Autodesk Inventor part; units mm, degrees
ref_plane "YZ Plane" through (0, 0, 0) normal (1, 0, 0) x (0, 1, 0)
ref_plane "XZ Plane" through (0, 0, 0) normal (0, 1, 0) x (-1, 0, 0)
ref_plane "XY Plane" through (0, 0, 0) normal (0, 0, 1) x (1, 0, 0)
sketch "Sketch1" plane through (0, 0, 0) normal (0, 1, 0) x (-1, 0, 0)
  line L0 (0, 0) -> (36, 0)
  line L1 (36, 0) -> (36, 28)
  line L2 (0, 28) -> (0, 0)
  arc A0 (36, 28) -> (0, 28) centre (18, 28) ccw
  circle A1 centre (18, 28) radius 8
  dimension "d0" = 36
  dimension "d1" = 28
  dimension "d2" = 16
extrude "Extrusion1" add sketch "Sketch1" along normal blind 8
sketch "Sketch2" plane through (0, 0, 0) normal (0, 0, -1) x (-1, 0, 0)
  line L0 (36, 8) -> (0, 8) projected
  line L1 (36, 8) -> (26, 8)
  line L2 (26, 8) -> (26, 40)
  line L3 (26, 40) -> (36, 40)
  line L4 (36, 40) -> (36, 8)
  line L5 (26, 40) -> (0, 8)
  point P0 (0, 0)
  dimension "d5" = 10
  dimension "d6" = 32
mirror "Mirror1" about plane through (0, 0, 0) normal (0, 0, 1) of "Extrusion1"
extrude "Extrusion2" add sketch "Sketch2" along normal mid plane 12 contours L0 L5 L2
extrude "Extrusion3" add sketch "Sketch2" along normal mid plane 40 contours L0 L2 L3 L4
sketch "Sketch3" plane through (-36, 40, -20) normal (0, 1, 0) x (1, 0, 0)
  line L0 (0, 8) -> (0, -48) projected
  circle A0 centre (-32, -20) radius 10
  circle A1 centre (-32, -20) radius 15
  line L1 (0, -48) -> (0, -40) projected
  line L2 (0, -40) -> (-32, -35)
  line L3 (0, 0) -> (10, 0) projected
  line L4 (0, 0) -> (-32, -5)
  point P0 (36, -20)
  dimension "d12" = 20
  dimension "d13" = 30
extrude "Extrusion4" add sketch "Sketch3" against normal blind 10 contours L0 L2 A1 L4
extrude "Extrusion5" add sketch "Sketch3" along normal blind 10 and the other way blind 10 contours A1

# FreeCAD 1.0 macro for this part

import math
import FreeCAD as App
import Part
import Sketcher
from FreeCAD import Vector
Q = App.Units.Quantity

doc = App.newDocument("Part")
body = doc.addObject("PartDesign::Body", "Body")

# Sketch on XZ plane
sketch1 = body.newObject("Sketcher::SketchObject", "Sketch")
sketch1.AttachmentSupport = (doc.getObject("XZ_Plane"), [""])
sketch1.MapMode = "FlatFace"
sketch1.addGeometry(Part.LineSegment(Vector(0, 28, 0), Vector(0, 0, 0)), False)
sketch1.addGeometry(Part.LineSegment(Vector(0, 0, 0), Vector(-36, 0, 0)), False)
sketch1.addGeometry(Part.LineSegment(Vector(-36, 0, 0), Vector(-36, 28, 0)), False)
sketch1.addGeometry(Part.ArcOfCircle(Part.Circle(Vector(-18, 28, 0), Vector(0, 0, 1), 18), math.radians(0), math.radians(180)), False)
sketch1.addGeometry(Part.Circle(Vector(-18, 28, 0), Vector(0, 0, 1), 8), False)
sketch1.addConstraint(Sketcher.Constraint("Coincident", 0, 2, 1, 1))
sketch1.addConstraint(Sketcher.Constraint("Coincident", 1, 2, 2, 1))
sketch1.addConstraint(Sketcher.Constraint("Tangent", 2, 2, 3, 2))
sketch1.addConstraint(Sketcher.Constraint("Tangent", 3, 1, 0, 1))
sketch1.addConstraint(Sketcher.Constraint("Vertical", 0))
sketch1.addConstraint(Sketcher.Constraint("Horizontal", 1))
sketch1.addConstraint(Sketcher.Constraint("Vertical", 2))
sketch1.addConstraint(Sketcher.Constraint("Coincident", 0, 2, -1, 1))
sketch1.addConstraint(Sketcher.Constraint("Coincident", 4, 3, 3, 3))
sketch1.addConstraint(Sketcher.Constraint("Diameter", 4, Q("16 mm")))
sketch1.addConstraint(Sketcher.Constraint("Radius", 3, Q("18 mm")))
sketch1.addConstraint(Sketcher.Constraint("DistanceY", 0, 2, 0, 1, Q("28 mm")))
pad1 = body.newObject("PartDesign::Pad", "Pad")
pad1.Profile = sketch1
pad1.Length = 8
pad1.Reversed = True
doc.recompute()

mirrored = body.newObject("PartDesign::Mirrored", "Mirrored")
mirrored.Originals = [pad1]
mirrored.MirrorPlane = (doc.getObject("XY_Plane"), [""])
body.Tip = mirrored

# Sketch on XY plane
sketch2 = body.newObject("Sketcher::SketchObject", "Sketch001")
sketch2.AttachmentSupport = (doc.getObject("XY_Plane"), [""])
sketch2.MapMode = "FlatFace"
sketch2.addGeometry(Part.LineSegment(Vector(0, 8, 0), Vector(-26, 8, 0)), False)
sketch2.addGeometry(Part.LineSegment(Vector(-26, 8, 0), Vector(-26, 40, 0)), False)
sketch2.addGeometry(Part.LineSegment(Vector(-26, 40, 0), Vector(0, 8, 0)), False)
sketch2.addConstraint(Sketcher.Constraint("Coincident", 0, 2, 1, 1))
sketch2.addConstraint(Sketcher.Constraint("Coincident", 1, 2, 2, 1))
sketch2.addConstraint(Sketcher.Constraint("Coincident", 2, 2, 0, 1))
sketch2.addConstraint(Sketcher.Constraint("Horizontal", 0))
sketch2.addConstraint(Sketcher.Constraint("Vertical", 1))
sketch2.addConstraint(Sketcher.Constraint("PointOnObject", 2, 2, -2))
sketch2.addConstraint(Sketcher.Constraint("DistanceY", 1, 1, 1, 2, Q("32 mm")))
sketch2.addConstraint(Sketcher.Constraint("DistanceX", 0, 2, 0, 1, Q("26 mm")))
sketch2.addConstraint(Sketcher.Constraint("DistanceY", -1, 1, 0, 2, Q("8 mm")))
pad2 = body.newObject("PartDesign::Pad", "Pad001")
pad2.Profile = sketch2
pad2.Length = 12
pad2.Midplane = True

# Sketch on XY plane
sketch3 = body.newObject("Sketcher::SketchObject", "Sketch002")
sketch3.AttachmentSupport = (doc.getObject("XY_Plane"), [""])
sketch3.MapMode = "FlatFace"
sketch3.addGeometry(Part.LineSegment(Vector(-26, 8, 0), Vector(-36, 8, 0)), False)
sketch3.addGeometry(Part.LineSegment(Vector(-36, 8, 0), Vector(-36, 40, 0)), False)
sketch3.addGeometry(Part.LineSegment(Vector(-36, 40, 0), Vector(-26, 40, 0)), False)
sketch3.addGeometry(Part.LineSegment(Vector(-26, 40, 0), Vector(-26, 8, 0)), False)
sketch3.addConstraint(Sketcher.Constraint("Coincident", 0, 2, 1, 1))
sketch3.addConstraint(Sketcher.Constraint("Coincident", 1, 2, 2, 1))
sketch3.addConstraint(Sketcher.Constraint("Coincident", 2, 2, 3, 1))
sketch3.addConstraint(Sketcher.Constraint("Coincident", 3, 2, 0, 1))
sketch3.addConstraint(Sketcher.Constraint("Horizontal", 0))
sketch3.addConstraint(Sketcher.Constraint("Vertical", 1))
sketch3.addConstraint(Sketcher.Constraint("Horizontal", 2))
sketch3.addConstraint(Sketcher.Constraint("Vertical", 3))
sketch3.addConstraint(Sketcher.Constraint("DistanceX", 0, 2, 0, 1, Q("10 mm")))
sketch3.addConstraint(Sketcher.Constraint("DistanceY", 1, 1, 1, 2, Q("32 mm")))
sketch3.addConstraint(Sketcher.Constraint("DistanceX", 0, 2, -1, 1, Q("36 mm")))
sketch3.addConstraint(Sketcher.Constraint("DistanceY", -1, 1, 0, 2, Q("8 mm")))
pad3 = body.newObject("PartDesign::Pad", "Pad002")
pad3.Profile = sketch3
pad3.Length = 40
pad3.Midplane = True

# Sketch on XZ plane
sketch4 = body.newObject("Sketcher::SketchObject", "Sketch003")
sketch4.AttachmentSupport = (doc.getObject("XZ_Plane"), [""])
sketch4.MapMode = "FlatFace"
sketch4.AttachmentOffset = App.Placement(Vector(0, 0, -40), App.Rotation())
sketch4.addGeometry(Part.LineSegment(Vector(-36, 20, 0), Vector(-36, -20, 0)), False)
sketch4.addGeometry(Part.LineSegment(Vector(-36, -20, 0), Vector(-68, -15, 0)), False)
sketch4.addGeometry(Part.ArcOfCircle(Part.Circle(Vector(-68, 0, 0), Vector(0, 0, 1), 15), math.radians(-90), math.radians(90)), False)
sketch4.addGeometry(Part.LineSegment(Vector(-68, 15, 0), Vector(-36, 20, 0)), False)
sketch4.addConstraint(Sketcher.Constraint("Coincident", 0, 2, 1, 1))
sketch4.addConstraint(Sketcher.Constraint("Coincident", 1, 2, 2, 1))
sketch4.addConstraint(Sketcher.Constraint("Coincident", 2, 2, 3, 1))
sketch4.addConstraint(Sketcher.Constraint("Coincident", 3, 2, 0, 1))
sketch4.addConstraint(Sketcher.Constraint("Vertical", 0))
sketch4.addConstraint(Sketcher.Constraint("Symmetric", 1, 2, 2, 2, -1))
sketch4.addConstraint(Sketcher.Constraint("Vertical", 2, 3, 1, 2))
sketch4.addConstraint(Sketcher.Constraint("Equal", 1, 3))
sketch4.addConstraint(Sketcher.Constraint("Radius", 2, Q("15 mm")))
sketch4.addConstraint(Sketcher.Constraint("DistanceY", 0, 2, -1, 1, Q("20 mm")))
sketch4.addConstraint(Sketcher.Constraint("DistanceX", 2, 3, -1, 1, Q("68 mm")))
sketch4.addConstraint(Sketcher.Constraint("DistanceX", 0, 2, -1, 1, Q("36 mm")))
pad4 = body.newObject("PartDesign::Pad", "Pad003")
pad4.Profile = sketch4
pad4.Length = 10

# Sketch on XZ plane
sketch5 = body.newObject("Sketcher::SketchObject", "Sketch004")
sketch5.AttachmentSupport = (doc.getObject("XZ_Plane"), [""])
sketch5.MapMode = "FlatFace"
sketch5.AttachmentOffset = App.Placement(Vector(0, 0, -40), App.Rotation())
sketch5.addGeometry(Part.Circle(Vector(-68, 0, 0), Vector(0, 0, 1), 15), False)
sketch5.addGeometry(Part.Circle(Vector(-68, 0, 0), Vector(0, 0, 1), 10), False)
sketch5.addConstraint(Sketcher.Constraint("Coincident", 1, 3, 0, 3))
sketch5.addConstraint(Sketcher.Constraint("PointOnObject", 0, 3, -1))
sketch5.addConstraint(Sketcher.Constraint("Diameter", 0, Q("30 mm")))
sketch5.addConstraint(Sketcher.Constraint("Diameter", 1, Q("20 mm")))
sketch5.addConstraint(Sketcher.Constraint("DistanceX", 0, 3, -1, 1, Q("68 mm")))
pad5 = body.newObject("PartDesign::Pad", "Pad004")
pad5.Profile = sketch5
pad5.Type = "TwoLengths"
pad5.Length = 10
pad5.Length2 = 10
pad5.Reversed = True

doc.recompute()
